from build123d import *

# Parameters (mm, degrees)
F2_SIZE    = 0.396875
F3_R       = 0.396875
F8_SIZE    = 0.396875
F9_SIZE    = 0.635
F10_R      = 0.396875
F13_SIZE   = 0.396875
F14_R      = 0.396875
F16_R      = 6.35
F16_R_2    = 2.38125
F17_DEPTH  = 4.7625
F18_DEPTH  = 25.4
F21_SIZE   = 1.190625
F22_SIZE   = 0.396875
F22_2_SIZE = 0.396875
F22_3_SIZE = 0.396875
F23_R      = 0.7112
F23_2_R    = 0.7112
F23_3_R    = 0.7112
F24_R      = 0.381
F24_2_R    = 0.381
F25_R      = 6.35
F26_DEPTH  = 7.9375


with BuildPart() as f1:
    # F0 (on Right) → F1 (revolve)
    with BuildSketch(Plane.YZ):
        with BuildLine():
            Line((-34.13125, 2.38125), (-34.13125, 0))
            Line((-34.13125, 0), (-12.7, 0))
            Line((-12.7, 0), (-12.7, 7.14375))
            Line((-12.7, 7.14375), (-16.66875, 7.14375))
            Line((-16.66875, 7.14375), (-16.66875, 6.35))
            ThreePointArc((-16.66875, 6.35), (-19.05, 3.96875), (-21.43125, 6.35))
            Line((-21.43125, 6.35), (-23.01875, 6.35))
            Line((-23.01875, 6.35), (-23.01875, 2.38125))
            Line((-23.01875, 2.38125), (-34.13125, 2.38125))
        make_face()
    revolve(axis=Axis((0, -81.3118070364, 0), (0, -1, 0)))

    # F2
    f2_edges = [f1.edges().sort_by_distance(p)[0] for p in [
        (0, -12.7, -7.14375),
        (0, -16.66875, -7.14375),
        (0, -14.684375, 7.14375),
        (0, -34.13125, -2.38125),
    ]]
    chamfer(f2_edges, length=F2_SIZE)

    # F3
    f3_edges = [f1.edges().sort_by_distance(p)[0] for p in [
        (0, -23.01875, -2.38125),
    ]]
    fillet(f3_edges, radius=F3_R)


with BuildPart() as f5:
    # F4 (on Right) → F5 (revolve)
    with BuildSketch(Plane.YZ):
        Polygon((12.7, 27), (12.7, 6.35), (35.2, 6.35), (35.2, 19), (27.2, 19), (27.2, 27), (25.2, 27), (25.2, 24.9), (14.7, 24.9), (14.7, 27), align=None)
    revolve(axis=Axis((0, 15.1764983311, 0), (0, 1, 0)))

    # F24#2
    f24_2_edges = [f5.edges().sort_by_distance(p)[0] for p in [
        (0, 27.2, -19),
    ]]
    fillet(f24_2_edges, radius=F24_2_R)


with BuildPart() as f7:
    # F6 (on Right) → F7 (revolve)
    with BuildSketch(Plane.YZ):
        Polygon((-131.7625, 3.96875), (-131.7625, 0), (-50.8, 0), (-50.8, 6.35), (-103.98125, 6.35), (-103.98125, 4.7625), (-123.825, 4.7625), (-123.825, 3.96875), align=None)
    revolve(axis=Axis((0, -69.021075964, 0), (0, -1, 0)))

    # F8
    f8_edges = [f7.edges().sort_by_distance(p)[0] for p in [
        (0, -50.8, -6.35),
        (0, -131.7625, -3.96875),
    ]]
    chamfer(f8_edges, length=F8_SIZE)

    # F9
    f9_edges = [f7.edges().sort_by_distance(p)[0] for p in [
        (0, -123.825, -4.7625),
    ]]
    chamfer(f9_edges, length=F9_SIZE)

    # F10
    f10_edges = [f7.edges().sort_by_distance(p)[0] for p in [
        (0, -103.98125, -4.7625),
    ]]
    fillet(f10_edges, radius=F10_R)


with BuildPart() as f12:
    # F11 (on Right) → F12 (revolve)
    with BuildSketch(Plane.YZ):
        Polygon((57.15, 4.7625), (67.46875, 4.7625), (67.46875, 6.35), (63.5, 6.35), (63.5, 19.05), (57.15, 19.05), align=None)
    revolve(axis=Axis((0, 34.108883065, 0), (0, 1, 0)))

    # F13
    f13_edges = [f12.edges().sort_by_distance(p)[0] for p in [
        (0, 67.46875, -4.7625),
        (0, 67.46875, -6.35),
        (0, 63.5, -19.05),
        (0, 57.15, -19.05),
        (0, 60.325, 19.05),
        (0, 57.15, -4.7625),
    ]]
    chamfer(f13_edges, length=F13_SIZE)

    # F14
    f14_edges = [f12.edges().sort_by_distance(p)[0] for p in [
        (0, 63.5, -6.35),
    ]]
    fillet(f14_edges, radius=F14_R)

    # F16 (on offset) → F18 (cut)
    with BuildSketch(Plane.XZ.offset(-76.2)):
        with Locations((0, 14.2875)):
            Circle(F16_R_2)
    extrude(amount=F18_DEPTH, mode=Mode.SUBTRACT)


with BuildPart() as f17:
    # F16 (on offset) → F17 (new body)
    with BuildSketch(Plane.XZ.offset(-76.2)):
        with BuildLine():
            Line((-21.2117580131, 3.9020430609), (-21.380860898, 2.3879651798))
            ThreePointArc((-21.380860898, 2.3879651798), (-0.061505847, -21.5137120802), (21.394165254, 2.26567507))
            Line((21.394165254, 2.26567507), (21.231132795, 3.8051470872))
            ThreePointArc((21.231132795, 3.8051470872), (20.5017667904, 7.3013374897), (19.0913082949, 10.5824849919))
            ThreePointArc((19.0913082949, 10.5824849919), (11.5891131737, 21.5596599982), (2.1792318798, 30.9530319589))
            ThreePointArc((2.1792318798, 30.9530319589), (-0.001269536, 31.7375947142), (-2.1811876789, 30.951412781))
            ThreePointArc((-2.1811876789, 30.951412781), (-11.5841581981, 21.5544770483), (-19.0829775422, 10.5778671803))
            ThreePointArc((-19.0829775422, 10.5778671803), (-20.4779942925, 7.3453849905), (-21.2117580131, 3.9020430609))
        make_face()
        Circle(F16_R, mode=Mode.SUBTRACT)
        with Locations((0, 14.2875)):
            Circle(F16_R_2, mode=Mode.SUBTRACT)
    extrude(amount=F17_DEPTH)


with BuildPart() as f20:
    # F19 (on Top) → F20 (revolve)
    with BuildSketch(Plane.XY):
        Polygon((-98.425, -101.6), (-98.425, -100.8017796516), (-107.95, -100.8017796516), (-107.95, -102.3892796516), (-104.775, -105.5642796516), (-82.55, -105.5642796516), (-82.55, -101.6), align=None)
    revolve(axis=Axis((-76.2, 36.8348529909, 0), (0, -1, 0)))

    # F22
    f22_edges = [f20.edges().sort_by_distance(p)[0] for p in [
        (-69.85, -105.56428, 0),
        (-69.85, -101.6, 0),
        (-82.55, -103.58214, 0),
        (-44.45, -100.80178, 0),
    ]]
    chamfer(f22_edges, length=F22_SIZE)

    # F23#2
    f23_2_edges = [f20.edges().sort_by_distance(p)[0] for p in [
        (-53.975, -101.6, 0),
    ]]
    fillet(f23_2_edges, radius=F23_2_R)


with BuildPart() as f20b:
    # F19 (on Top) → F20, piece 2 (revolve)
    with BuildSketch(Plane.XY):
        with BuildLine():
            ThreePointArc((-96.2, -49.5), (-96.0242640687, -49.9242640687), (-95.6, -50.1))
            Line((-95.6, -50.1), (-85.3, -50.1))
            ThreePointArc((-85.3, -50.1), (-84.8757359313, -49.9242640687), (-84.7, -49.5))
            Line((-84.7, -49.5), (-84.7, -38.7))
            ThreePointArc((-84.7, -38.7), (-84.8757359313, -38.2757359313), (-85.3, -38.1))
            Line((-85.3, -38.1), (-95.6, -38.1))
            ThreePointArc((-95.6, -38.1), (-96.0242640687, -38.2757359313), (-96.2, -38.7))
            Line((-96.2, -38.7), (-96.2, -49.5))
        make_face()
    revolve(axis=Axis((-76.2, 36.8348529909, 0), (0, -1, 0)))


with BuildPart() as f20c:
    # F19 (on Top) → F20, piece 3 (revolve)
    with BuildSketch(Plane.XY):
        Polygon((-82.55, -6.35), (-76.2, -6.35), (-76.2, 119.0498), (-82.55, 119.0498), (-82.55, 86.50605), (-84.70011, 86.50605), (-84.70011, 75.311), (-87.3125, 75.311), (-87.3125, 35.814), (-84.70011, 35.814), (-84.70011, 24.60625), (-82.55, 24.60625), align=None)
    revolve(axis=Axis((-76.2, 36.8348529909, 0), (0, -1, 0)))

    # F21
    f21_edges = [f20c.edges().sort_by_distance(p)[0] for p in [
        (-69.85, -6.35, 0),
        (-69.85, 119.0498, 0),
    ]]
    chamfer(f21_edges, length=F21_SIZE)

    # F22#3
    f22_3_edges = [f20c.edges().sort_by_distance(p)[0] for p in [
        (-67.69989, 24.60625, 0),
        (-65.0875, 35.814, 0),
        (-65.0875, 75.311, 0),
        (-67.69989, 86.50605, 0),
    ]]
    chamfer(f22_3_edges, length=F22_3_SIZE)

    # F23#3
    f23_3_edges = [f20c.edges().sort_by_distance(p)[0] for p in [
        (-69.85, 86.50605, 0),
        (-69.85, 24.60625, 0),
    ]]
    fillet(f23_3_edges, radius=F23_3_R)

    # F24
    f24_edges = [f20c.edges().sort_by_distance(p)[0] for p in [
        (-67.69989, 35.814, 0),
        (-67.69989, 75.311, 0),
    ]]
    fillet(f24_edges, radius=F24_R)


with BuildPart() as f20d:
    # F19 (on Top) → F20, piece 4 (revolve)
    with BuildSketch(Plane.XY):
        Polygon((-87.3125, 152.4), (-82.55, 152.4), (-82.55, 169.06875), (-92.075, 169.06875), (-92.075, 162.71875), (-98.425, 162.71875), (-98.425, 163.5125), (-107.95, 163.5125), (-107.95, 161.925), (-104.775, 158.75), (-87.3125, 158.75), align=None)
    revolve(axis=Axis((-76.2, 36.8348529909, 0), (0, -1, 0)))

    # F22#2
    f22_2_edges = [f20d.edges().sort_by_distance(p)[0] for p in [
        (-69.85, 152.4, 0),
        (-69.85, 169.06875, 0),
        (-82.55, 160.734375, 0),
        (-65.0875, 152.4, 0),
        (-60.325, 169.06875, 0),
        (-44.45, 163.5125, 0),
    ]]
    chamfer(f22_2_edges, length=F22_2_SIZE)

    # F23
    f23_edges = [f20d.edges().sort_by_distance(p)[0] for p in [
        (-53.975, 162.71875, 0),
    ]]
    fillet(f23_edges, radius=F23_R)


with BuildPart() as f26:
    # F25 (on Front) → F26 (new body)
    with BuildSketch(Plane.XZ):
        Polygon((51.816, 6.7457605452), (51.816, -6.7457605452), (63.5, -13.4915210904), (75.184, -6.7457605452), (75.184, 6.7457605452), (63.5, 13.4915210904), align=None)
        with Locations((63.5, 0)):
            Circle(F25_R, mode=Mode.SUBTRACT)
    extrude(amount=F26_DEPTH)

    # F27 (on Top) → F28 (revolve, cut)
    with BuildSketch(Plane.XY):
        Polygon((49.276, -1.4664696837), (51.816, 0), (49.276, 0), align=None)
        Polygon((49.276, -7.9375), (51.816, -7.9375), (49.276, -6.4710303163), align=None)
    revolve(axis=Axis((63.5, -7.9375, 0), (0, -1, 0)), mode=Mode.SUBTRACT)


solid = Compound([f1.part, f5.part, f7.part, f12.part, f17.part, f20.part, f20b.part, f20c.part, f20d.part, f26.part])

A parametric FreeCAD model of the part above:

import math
import FreeCAD as App
import Part
import Sketcher
Q = App.Units.Quantity


def edges_at(feature, points):
    """Names of the edges that pass closest to the given points."""
    edges = feature.Shape.Edges
    near = lambda p: min(range(len(edges)), key=lambda i: edges[i].distToShape(Part.Vertex(*p))[0])
    return sorted({f"Edge{near(p) + 1}" for p in points})

doc = App.newDocument("Part")
body = doc.addObject("PartDesign::Body", "Body")

sketch1 = body.newObject("Sketcher::SketchObject", "Sketch")
sketch1.AttachmentSupport = (doc.getObject("YZ_Plane"), [""])
sketch1.MapMode = "FlatFace"
sketch1.addGeometry(Part.LineSegment(App.Vector(-34.13125, 2.38125, 0), App.Vector(-34.13125, 0, 0)), False)
sketch1.addGeometry(Part.LineSegment(App.Vector(-34.13125, 0, 0), App.Vector(-12.7, 0, 0)), False)
sketch1.addGeometry(Part.LineSegment(App.Vector(-12.7, 0, 0), App.Vector(-12.7, 7.14375, 0)), False)
sketch1.addGeometry(Part.LineSegment(App.Vector(-12.7, 7.14375, 0), App.Vector(-16.66875, 7.14375, 0)), False)
sketch1.addGeometry(Part.LineSegment(App.Vector(-16.66875, 7.14375, 0), App.Vector(-16.66875, 6.35, 0)), False)
sketch1.addGeometry(Part.ArcOfCircle(Part.Circle(App.Vector(-19.05, 6.35, 0), App.Vector(0, 0, 1), 2.38125), math.radians(180), math.radians(360)), False)
sketch1.addGeometry(Part.LineSegment(App.Vector(-21.43125, 6.35, 0), App.Vector(-23.01875, 6.35, 0)), False)
sketch1.addGeometry(Part.LineSegment(App.Vector(-23.01875, 6.35, 0), App.Vector(-23.01875, 2.38125, 0)), False)
sketch1.addGeometry(Part.LineSegment(App.Vector(-23.01875, 2.38125, 0), App.Vector(-34.13125, 2.38125, 0)), False)
sketch1.addConstraint(Sketcher.Constraint("Coincident", 0, 2, 1, 1))
sketch1.addConstraint(Sketcher.Constraint("Coincident", 1, 2, 2, 1))
sketch1.addConstraint(Sketcher.Constraint("Coincident", 2, 2, 3, 1))
sketch1.addConstraint(Sketcher.Constraint("Coincident", 3, 2, 4, 1))
sketch1.addConstraint(Sketcher.Constraint("Tangent", 4, 2, 5, 2))
sketch1.addConstraint(Sketcher.Constraint("Coincident", 5, 1, 6, 1))
sketch1.addConstraint(Sketcher.Constraint("Coincident", 6, 2, 7, 1))
sketch1.addConstraint(Sketcher.Constraint("Coincident", 7, 2, 8, 1))
sketch1.addConstraint(Sketcher.Constraint("Coincident", 8, 2, 0, 1))
sketch1.addConstraint(Sketcher.Constraint("Vertical", 0))
sketch1.addConstraint(Sketcher.Constraint("Horizontal", 1))
sketch1.addConstraint(Sketcher.Constraint("Vertical", 2))
sketch1.addConstraint(Sketcher.Constraint("Horizontal", 3))
sketch1.addConstraint(Sketcher.Constraint("Vertical", 4))
sketch1.addConstraint(Sketcher.Constraint("Horizontal", 6))
sketch1.addConstraint(Sketcher.Constraint("Vertical", 7))
sketch1.addConstraint(Sketcher.Constraint("Horizontal", 8))
sketch1.addConstraint(Sketcher.Constraint("PointOnObject", 0, 2, -1))
sketch1.addConstraint(Sketcher.Constraint("Horizontal", 4, 2, 5, 1))
sketch1.addConstraint(Sketcher.Constraint("Equal", 3, 7))
sketch1.addConstraint(Sketcher.Constraint("Radius", 5, Q("0.09375 in")))
sketch1.addConstraint(Sketcher.Constraint("DistanceX", 1, 2, -1, 1, Q("0.5 in")))
sketch1.addConstraint(Sketcher.Constraint("DistanceX", 8, 2, 5, 1, Q("0.5 in")))
sketch1.addConstraint(Sketcher.Constraint("DistanceX", 1, 1, 1, 2, Q("0.84375 in")))
sketch1.addConstraint(Sketcher.Constraint("DistanceX", 6, 2, 6, 1, Q("0.0625 in")))
sketch1.addConstraint(Sketcher.Constraint("DistanceY", 0, 2, 0, 1, Q("0.09375 in")))
sketch1.addConstraint(Sketcher.Constraint("DistanceY", 2, 1, 2, 2, Q("0.28125 in")))
revolution = body.newObject("PartDesign::Revolution", "Revolution")
revolution.Profile = sketch1
revolution.ReferenceAxis = (sketch1, ["H_Axis"])
revolution.Angle = 360
doc.recompute()

chamfer = body.newObject("PartDesign::Chamfer", "Chamfer")
chamfer.Base = (revolution, edges_at(revolution, [
    (0, -12.7, -7.144),
    (0, -16.669, -7.144),
    (0, -14.684, 7.144),
    (0, -34.131, -2.381),
]))
chamfer.Size = Q("0.015625 in")
doc.recompute()

fillet = body.newObject("PartDesign::Fillet", "Fillet")
fillet.Base = (chamfer, edges_at(chamfer, [(0, -23.019, -2.381)]))
fillet.Radius = Q("0.015625 in")
body2 = doc.addObject("PartDesign::Body", "Body001")

sketch2 = body2.newObject("Sketcher::SketchObject", "Sketch001")
sketch2.AttachmentSupport = (doc.getObject("YZ_Plane001"), [""])
sketch2.MapMode = "FlatFace"
sketch2.addGeometry(Part.LineSegment(App.Vector(12.7, 27, 0), App.Vector(12.7, 6.35, 0)), False)
sketch2.addGeometry(Part.LineSegment(App.Vector(12.7, 6.35, 0), App.Vector(35.2, 6.35, 0)), False)
sketch2.addGeometry(Part.LineSegment(App.Vector(35.2, 6.35, 0), App.Vector(35.2, 19, 0)), False)
sketch2.addGeometry(Part.LineSegment(App.Vector(35.2, 19, 0), App.Vector(27.2, 19, 0)), False)
sketch2.addGeometry(Part.LineSegment(App.Vector(27.2, 19, 0), App.Vector(27.2, 27, 0)), False)
sketch2.addGeometry(Part.LineSegment(App.Vector(27.2, 27, 0), App.Vector(25.2, 27, 0)), False)
sketch2.addGeometry(Part.LineSegment(App.Vector(25.2, 27, 0), App.Vector(25.2, 24.9, 0)), False)
sketch2.addGeometry(Part.LineSegment(App.Vector(25.2, 24.9, 0), App.Vector(14.7, 24.9, 0)), False)
sketch2.addGeometry(Part.LineSegment(App.Vector(14.7, 24.9, 0), App.Vector(14.7, 27, 0)), False)
sketch2.addGeometry(Part.LineSegment(App.Vector(14.7, 27, 0), App.Vector(12.7, 27, 0)), False)
sketch2.addConstraint(Sketcher.Constraint("Coincident", 0, 2, 1, 1))
sketch2.addConstraint(Sketcher.Constraint("Coincident", 1, 2, 2, 1))
sketch2.addConstraint(Sketcher.Constraint("Coincident", 2, 2, 3, 1))
sketch2.addConstraint(Sketcher.Constraint("Coincident", 3, 2, 4, 1))
sketch2.addConstraint(Sketcher.Constraint("Coincident", 4, 2, 5, 1))
sketch2.addConstraint(Sketcher.Constraint("Coincident", 5, 2, 6, 1))
sketch2.addConstraint(Sketcher.Constraint("Coincident", 6, 2, 7, 1))
sketch2.addConstraint(Sketcher.Constraint("Coincident", 7, 2, 8, 1))
sketch2.addConstraint(Sketcher.Constraint("Coincident", 8, 2, 9, 1))
sketch2.addConstraint(Sketcher.Constraint("Coincident", 9, 2, 0, 1))
sketch2.addConstraint(Sketcher.Constraint("Vertical", 0))
sketch2.addConstraint(Sketcher.Constraint("Horizontal", 1))
sketch2.addConstraint(Sketcher.Constraint("Vertical", 2))
sketch2.addConstraint(Sketcher.Constraint("Horizontal", 3))
sketch2.addConstraint(Sketcher.Constraint("Vertical", 4))
sketch2.addConstraint(Sketcher.Constraint("Horizontal", 5))
sketch2.addConstraint(Sketcher.Constraint("Vertical", 6))
sketch2.addConstraint(Sketcher.Constraint("Horizontal", 7))
sketch2.addConstraint(Sketcher.Constraint("Vertical", 8))
sketch2.addConstraint(Sketcher.Constraint("Horizontal", 9))
sketch2.addConstraint(Sketcher.Constraint("Horizontal", 5, 2, 8, 2))
sketch2.addConstraint(Sketcher.Constraint("Equal", 5, 9))
sketch2.addConstraint(Sketcher.Constraint("Equal", 3, 4))
sketch2.addConstraint(Sketcher.Constraint("DistanceX", -1, 1, 0, 2, Q("0.5 in")))
sketch2.addConstraint(Sketcher.Constraint("DistanceY", -1, 1, 0, 2, Q("0.25 in")))
sketch2.addConstraint(Sketcher.Constraint("DistanceX", 1, 1, 1, 2, Q("22.5 mm")))
sketch2.addConstraint(Sketcher.Constraint("DistanceX", 3, 2, 3, 1, Q("8 mm")))
sketch2.addConstraint(Sketcher.Constraint("DistanceX", 5, 2, 5, 1, Q("2 mm")))
sketch2.addConstraint(Sketcher.Constraint("DistanceY", 0, 2, 0, 1, Q("20.65 mm")))
sketch2.addConstraint(Sketcher.Constraint("DistanceY", 6, 2, 6, 1, Q("2.1 mm")))
revolution2 = body2.newObject("PartDesign::Revolution", "Revolution001")
revolution2.Profile = sketch2
revolution2.ReferenceAxis = (sketch2, ["H_Axis"])
revolution2.Angle = 360
doc.recompute()

fillet2 = body2.newObject("PartDesign::Fillet", "Fillet001")
fillet2.Base = (revolution2, edges_at(revolution2, [(0, 27.2, -19)]))
fillet2.Radius = Q("0.015 in")
body3 = doc.addObject("PartDesign::Body", "Body002")

sketch3 = body3.newObject("Sketcher::SketchObject", "Sketch002")
sketch3.AttachmentSupport = (doc.getObject("YZ_Plane002"), [""])
sketch3.MapMode = "FlatFace"
sketch3.addGeometry(Part.LineSegment(App.Vector(-131.7625, 3.96875, 0), App.Vector(-131.7625, 0, 0)), False)
sketch3.addGeometry(Part.LineSegment(App.Vector(-131.7625, 0, 0), App.Vector(-50.8, 0, 0)), False)
sketch3.addGeometry(Part.LineSegment(App.Vector(-50.8, 0, 0), App.Vector(-50.8, 6.35, 0)), False)
sketch3.addGeometry(Part.LineSegment(App.Vector(-50.8, 6.35, 0), App.Vector(-103.98125, 6.35, 0)), False)
sketch3.addGeometry(Part.LineSegment(App.Vector(-103.98125, 6.35, 0), App.Vector(-103.98125, 4.7625, 0)), False)
sketch3.addGeometry(Part.LineSegment(App.Vector(-103.98125, 4.7625, 0), App.Vector(-123.825, 4.7625, 0)), False)
sketch3.addGeometry(Part.LineSegment(App.Vector(-123.825, 4.7625, 0), App.Vector(-123.825, 3.96875, 0)), False)
sketch3.addGeometry(Part.LineSegment(App.Vector(-123.825, 3.96875, 0), App.Vector(-131.7625, 3.96875, 0)), False)
sketch3.addConstraint(Sketcher.Constraint("Coincident", 0, 2, 1, 1))
sketch3.addConstraint(Sketcher.Constraint("Coincident", 1, 2, 2, 1))
sketch3.addConstraint(Sketcher.Constraint("Coincident", 2, 2, 3, 1))
sketch3.addConstraint(Sketcher.Constraint("Coincident", 3, 2, 4, 1))
sketch3.addConstraint(Sketcher.Constraint("Coincident", 4, 2, 5, 1))
sketch3.addConstraint(Sketcher.Constraint("Coincident", 5, 2, 6, 1))
sketch3.addConstraint(Sketcher.Constraint("Coincident", 6, 2, 7, 1))
sketch3.addConstraint(Sketcher.Constraint("Coincident", 7, 2, 0, 1))
sketch3.addConstraint(Sketcher.Constraint("Vertical", 0))
sketch3.addConstraint(Sketcher.Constraint("Horizontal", 1))
sketch3.addConstraint(Sketcher.Constraint("Vertical", 2))
sketch3.addConstraint(Sketcher.Constraint("Horizontal", 3))
sketch3.addConstraint(Sketcher.Constraint("Vertical", 4))
sketch3.addConstraint(Sketcher.Constraint("Horizontal", 5))
sketch3.addConstraint(Sketcher.Constraint("Vertical", 6))
sketch3.addConstraint(Sketcher.Constraint("Horizontal", 7))
sketch3.addConstraint(Sketcher.Constraint("PointOnObject", 0, 2, -1))
sketch3.addConstraint(Sketcher.Constraint("DistanceX", 1, 2, -1, 1, Q("2 in")))
sketch3.addConstraint(Sketcher.Constraint("DistanceY", 2, 1, 2, 2, Q("0.25 in")))
sketch3.addConstraint(Sketcher.Constraint("DistanceX", 1, 1, 1, 2, Q("3.1875 in")))
sketch3.addConstraint(Sketcher.Constraint("DistanceX", 3, 2, 3, 1, Q("2.09375 in")))
sketch3.addConstraint(Sketcher.Constraint("DistanceX", 5, 2, 5, 1, Q("0.78125 in")))
sketch3.addConstraint(Sketcher.Constraint("DistanceY", 0, 2, 0, 1, Q("0.15625 in")))
sketch3.addConstraint(Sketcher.Constraint("DistanceY", 4, 2, 4, 1, Q("0.0625 in")))
revolution3 = body3.newObject("PartDesign::Revolution", "Revolution002")
revolution3.Profile = sketch3
revolution3.ReferenceAxis = (sketch3, ["H_Axis"])
revolution3.Angle = 360
doc.recompute()

chamfer2 = body3.newObject("PartDesign::Chamfer", "Chamfer001")
chamfer2.Base = (revolution3, edges_at(revolution3, [(0, -50.8, -6.35), (0, -131.762, -3.969)]))
chamfer2.Size = Q("0.015625 in")
doc.recompute()

chamfer3 = body3.newObject("PartDesign::Chamfer", "Chamfer002")
chamfer3.Base = (chamfer2, edges_at(chamfer2, [(0, -123.825, -4.763)]))
chamfer3.Size = Q("0.025 in")
doc.recompute()

fillet3 = body3.newObject("PartDesign::Fillet", "Fillet002")
fillet3.Base = (chamfer3, edges_at(chamfer3, [(0, -103.981, -4.763)]))
fillet3.Radius = Q("0.015625 in")
body4 = doc.addObject("PartDesign::Body", "Body003")

sketch4 = body4.newObject("Sketcher::SketchObject", "Sketch003")
sketch4.AttachmentSupport = (doc.getObject("YZ_Plane003"), [""])
sketch4.MapMode = "FlatFace"
sketch4.addGeometry(Part.LineSegment(App.Vector(57.15, 4.7625, 0), App.Vector(67.46875, 4.7625, 0)), False)
sketch4.addGeometry(Part.LineSegment(App.Vector(67.46875, 4.7625, 0), App.Vector(67.46875, 6.35, 0)), False)
sketch4.addGeometry(Part.LineSegment(App.Vector(67.46875, 6.35, 0), App.Vector(63.5, 6.35, 0)), False)
sketch4.addGeometry(Part.LineSegment(App.Vector(63.5, 6.35, 0), App.Vector(63.5, 19.05, 0)), False)
sketch4.addGeometry(Part.LineSegment(App.Vector(63.5, 19.05, 0), App.Vector(57.15, 19.05, 0)), False)
sketch4.addGeometry(Part.LineSegment(App.Vector(57.15, 19.05, 0), App.Vector(57.15, 4.7625, 0)), False)
sketch4.addConstraint(Sketcher.Constraint("Coincident", 0, 2, 1, 1))
sketch4.addConstraint(Sketcher.Constraint("Coincident", 1, 2, 2, 1))
sketch4.addConstraint(Sketcher.Constraint("Coincident", 2, 2, 3, 1))
sketch4.addConstraint(Sketcher.Constraint("Coincident", 3, 2, 4, 1))
sketch4.addConstraint(Sketcher.Constraint("Coincident", 4, 2, 5, 1))
sketch4.addConstraint(Sketcher.Constraint("Coincident", 5, 2, 0, 1))
sketch4.addConstraint(Sketcher.Constraint("Horizontal", 0))
sketch4.addConstraint(Sketcher.Constraint("Vertical", 1))
sketch4.addConstraint(Sketcher.Constraint("Horizontal", 2))
sketch4.addConstraint(Sketcher.Constraint("Vertical", 3))
sketch4.addConstraint(Sketcher.Constraint("Horizontal", 4))
sketch4.addConstraint(Sketcher.Constraint("Vertical", 5))
sketch4.addConstraint(Sketcher.Constraint("DistanceY", 3, 1, 3, 2, Q("0.5 in")))
sketch4.addConstraint(Sketcher.Constraint("DistanceX", 4, 2, 4, 1, Q("0.25 in")))
sketch4.addConstraint(Sketcher.Constraint("DistanceX", -1, 1, 2, 2, Q("2.5 in")))
sketch4.addConstraint(Sketcher.Constraint("DistanceX", 0, 1, 0, 2, Q("0.40625 in")))
sketch4.addConstraint(Sketcher.Constraint("DistanceY", 1, 1, 1, 2, Q("0.0625 in")))
sketch4.addConstraint(Sketcher.Constraint("DistanceY", -1, 1, 1, 2, Q("0.25 in")))
revolution4 = body4.newObject("PartDesign::Revolution", "Revolution003")
revolution4.Profile = sketch4
revolution4.ReferenceAxis = (sketch4, ["H_Axis"])
revolution4.Angle = 360
doc.recompute()

chamfer4 = body4.newObject("PartDesign::Chamfer", "Chamfer003")
chamfer4.Base = (revolution4, edges_at(revolution4, [
    (0, 67.469, -4.763),
    (0, 67.469, -6.35),
    (0, 63.5, -19.05),
    (0, 57.15, -19.05),
    (0, 60.325, 19.05),
    (0, 57.15, -4.763),
]))
chamfer4.Size = Q("0.015625 in")
doc.recompute()

fillet4 = body4.newObject("PartDesign::Fillet", "Fillet003")
fillet4.Base = (chamfer4, edges_at(chamfer4, [(0, 63.5, -6.35)]))
fillet4.Radius = Q("0.015625 in")

sketch5 = body4.newObject("Sketcher::SketchObject", "Sketch004")
sketch5.AttachmentSupport = (doc.getObject("XZ_Plane003"), [""])
sketch5.MapMode = "FlatFace"
sketch5.AttachmentOffset = App.Placement(App.Vector(0, 0, -3 * 25.4), App.Rotation())
sketch5.addGeometry(Part.Circle(App.Vector(0, 14.2875, 0), App.Vector(0, 0, 1), 2.38125), False)
sketch5.addConstraint(Sketcher.Constraint("PointOnObject", 0, 3, -2))
sketch5.addConstraint(Sketcher.Constraint("Diameter", 0, Q("0.1875 in")))
sketch5.addConstraint(Sketcher.Constraint("DistanceY", -1, 1, 0, 3, Q("0.5625 in")))
pocket1 = body4.newObject("PartDesign::Pocket", "Pocket")
pocket1.Profile = sketch5
pocket1.Length = Q("1 in")
pocket1.Reversed = True
body5 = doc.addObject("PartDesign::Body", "Body004")

sketch6 = body5.newObject("Sketcher::SketchObject", "Sketch005")
sketch6.AttachmentSupport = (doc.getObject("XZ_Plane004"), [""])
sketch6.MapMode = "FlatFace"
sketch6.AttachmentOffset = App.Placement(App.Vector(0, 0, -3 * 25.4), App.Rotation())
sketch6.addGeometry(Part.LineSegment(App.Vector(-21.211758, 3.902043, 0), App.Vector(-21.380861, 2.387965, 0)), False)
sketch6.addGeometry(Part.ArcOfCircle(Part.Circle(App.Vector(0, 0, 0), App.Vector(0, 0, 1), 21.5138), math.radians(173.627214), math.radians(366.045179)), False)
sketch6.addGeometry(Part.LineSegment(App.Vector(21.394165, 2.265675, 0), App.Vector(21.231133, 3.805147, 0)), False)
sketch6.addGeometry(Part.ArcOfCircle(Part.Circle(App.Vector(3.471702, 1.924396, 0), App.Vector(0, 0, 1), 17.85874), math.radians(6.045179), math.radians(29)), False)
sketch6.addGeometry(Part.ArcOfCircle(Part.Circle(App.Vector(-43.267715, -23.983686, 0), App.Vector(0, 0, 1), 71.298443), math.radians(29), math.radians(50.400408)), False)
sketch6.addGeometry(Part.ArcOfCircle(Part.Circle(App.Vector(0, 28.318755, 0), App.Vector(0, 0, 1), 3.41884), math.radians(50.400408), math.radians(129.642144)), False)
sketch6.addGeometry(Part.ArcOfCircle(Part.Circle(App.Vector(43.388782, -24.050794, 0), App.Vector(0, 0, 1), 71.42734), math.radians(129.642144), math.radians(151)), False)
sketch6.addGeometry(Part.ArcOfCircle(Part.Circle(App.Vector(-3.463372, 1.919778, 0), App.Vector(0, 0, 1), 17.85874), math.radians(151), math.radians(173.627214)), False)
sketch6.addGeometry(Part.Circle(App.Vector(0, 0, 0), App.Vector(0, 0, 1), 6.35), False)
sketch6.addGeometry(Part.Circle(App.Vector(0, 14.2875, 0), App.Vector(0, 0, 1), 2.38125), False)
sketch6.addConstraint(Sketcher.Constraint("Tangent", 0, 2, 1, 1))
sketch6.addConstraint(Sketcher.Constraint("Tangent", 1, 2, 2, 1))
sketch6.addConstraint(Sketcher.Constraint("Tangent", 2, 2, 3, 1))
sketch6.addConstraint(Sketcher.Constraint("Tangent", 3, 2, 4, 1))
sketch6.addConstraint(Sketcher.Constraint("Tangent", 4, 2, 5, 1))
sketch6.addConstraint(Sketcher.Constraint("Tangent", 5, 2, 6, 1))
sketch6.addConstraint(Sketcher.Constraint("Tangent", 6, 2, 7, 1))
sketch6.addConstraint(Sketcher.Constraint("Tangent", 7, 2, 0, 1))
sketch6.addConstraint(Sketcher.Constraint("Coincident", 1, 3, -1, 1))
sketch6.addConstraint(Sketcher.Constraint("Coincident", 8, 3, -1, 1))
sketch6.addConstraint(Sketcher.Constraint("Equal", 3, 7))
sketch6.addConstraint(Sketcher.Constraint("PointOnObject", 5, 3, -2))
sketch6.addConstraint(Sketcher.Constraint("PointOnObject", 9, 3, -2))
sketch6.addConstraint(Sketcher.Constraint("Diameter", 8, Q("0.5 in")))
sketch6.addConstraint(Sketcher.Constraint("Diameter", 9, Q("0.1875 in")))
sketch6.addConstraint(Sketcher.Constraint("Radius", 1, Q("0.847 in")))
sketch6.addConstraint(Sketcher.Constraint("Radius", 3, Q("0.7031 in")))
sketch6.addConstraint(Sketcher.Constraint("Radius", 5, Q("0.1346 in")))
sketch6.addConstraint(Sketcher.Constraint("Radius", 6, Q("2.8121 in")))
sketch6.addConstraint(Sketcher.Constraint("DistanceY", -1, 1, 9, 3, Q("0.5625 in")))
sketch6.addConstraint(Sketcher.Constraint("DistanceY", -1, 1, 1, 2, Q("0.0891998 in")))
sketch6.addConstraint(Sketcher.Constraint("Radius", 4, Q("71.298443 mm")))
sketch6.addConstraint(Sketcher.Constraint("DistanceX", 4, 3, 7, 3, Q("1.5671001 in")))
sketch6.addConstraint(Sketcher.Constraint("DistanceX", 5, 2, 3, 2, Q("0.8374998 in")))
sketch6.addConstraint(Sketcher.Constraint("DistanceY", 0, 2, 6, 2, Q("8.189902 mm")))
sketch6.addConstraint(Sketcher.Constraint("Distance", 0, Q("1.523492 mm")))
pad1 = body5.newObject("PartDesign::Pad", "Pad")
pad1.Profile = sketch6
pad1.Length = Q("0.1875 in")
body6 = doc.addObject("PartDesign::Body", "Body005")

sketch7 = body6.newObject("Sketcher::SketchObject", "Sketch006")
sketch7.AttachmentSupport = (doc.getObject("XY_Plane005"), [""])
sketch7.MapMode = "FlatFace"
sketch7.addGeometry(Part.LineSegment(App.Vector(-98.425, -101.6, 0), App.Vector(-98.425, -100.80178, 0)), False)
sketch7.addGeometry(Part.LineSegment(App.Vector(-98.425, -100.80178, 0), App.Vector(-107.95, -100.80178, 0)), False)
sketch7.addGeometry(Part.LineSegment(App.Vector(-107.95, -100.80178, 0), App.Vector(-107.95, -102.38928, 0)), False)
sketch7.addGeometry(Part.LineSegment(App.Vector(-107.95, -102.38928, 0), App.Vector(-104.775, -105.56428, 0)), False)
sketch7.addGeometry(Part.LineSegment(App.Vector(-104.775, -105.56428, 0), App.Vector(-82.55, -105.56428, 0)), False)
sketch7.addGeometry(Part.LineSegment(App.Vector(-82.55, -105.56428, 0), App.Vector(-82.55, -101.6, 0)), False)
sketch7.addGeometry(Part.LineSegment(App.Vector(-82.55, -101.6, 0), App.Vector(-98.425, -101.6, 0)), False)
sketch7.addGeometry(Part.LineSegment(App.Vector(-76.2, -100.80178, 0), App.Vector(-76.2, -105.56428, 0)), True)
sketch7.addConstraint(Sketcher.Constraint("Coincident", 0, 2, 1, 1))
sketch7.addConstraint(Sketcher.Constraint("Coincident", 1, 2, 2, 1))
sketch7.addConstraint(Sketcher.Constraint("Coincident", 2, 2, 3, 1))
sketch7.addConstraint(Sketcher.Constraint("Coincident", 3, 2, 4, 1))
sketch7.addConstraint(Sketcher.Constraint("Coincident", 4, 2, 5, 1))
sketch7.addConstraint(Sketcher.Constraint("Coincident", 5, 2, 6, 1))
sketch7.addConstraint(Sketcher.Constraint("Coincident", 6, 2, 0, 1))
sketch7.addConstraint(Sketcher.Constraint("Vertical", 0))
sketch7.addConstraint(Sketcher.Constraint("Horizontal", 1))
sketch7.addConstraint(Sketcher.Constraint("Vertical", 2))
sketch7.addConstraint(Sketcher.Constraint("Horizontal", 4))
sketch7.addConstraint(Sketcher.Constraint("Vertical", 5))
sketch7.addConstraint(Sketcher.Constraint("Horizontal", 6))
sketch7.addConstraint(Sketcher.Constraint("Vertical", 7))
sketch7.addConstraint(Sketcher.Constraint("Horizontal", 1, 2, 7, 1))
sketch7.addConstraint(Sketcher.Constraint("Horizontal", 4, 2, 7, 2))
sketch7.addConstraint(Sketcher.Constraint("DistanceY", 5, 2, -1, 1, Q("4 in")))
sketch7.addConstraint(Sketcher.Constraint("DistanceX", 7, 1, -1, 1, Q("3 in")))
sketch7.addConstraint(Sketcher.Constraint("Angle", 3, Q("-45 deg")))
sketch7.addConstraint(Sketcher.Constraint("DistanceX", 2, 2, 4, 2, Q("1 in")))
sketch7.addConstraint(Sketcher.Constraint("DistanceX", 1, 2, 1, 1, Q("0.375 in")))
sketch7.addConstraint(Sketcher.Constraint("DistanceX", 4, 1, 4, 2, Q("0.875 in")))
sketch7.addConstraint(Sketcher.Constraint("DistanceY", 2, 2, 2, 1, Q("0.0625 in")))
sketch7.addConstraint(Sketcher.Constraint("DistanceX", 1, 2, -1, 1, Q("4.25 in")))
sketch7.addConstraint(Sketcher.Constraint("DistanceY", 0, 1, 0, 2, Q("0.79822 mm")))
revolution5 = body6.newObject("PartDesign::Revolution", "Revolution004")
revolution5.Profile = sketch7
revolution5.ReferenceAxis = (sketch7, ["Axis0"])
revolution5.Angle = 360
doc.recompute()

chamfer5 = body6.newObject("PartDesign::Chamfer", "Chamfer004")
chamfer5.Base = (revolution5, edges_at(revolution5, [
    (-69.85, -105.564, 0),
    (-69.85, -101.6, 0),
    (-82.55, -103.582, 0),
    (-44.45, -100.802, 0),
]))
chamfer5.Size = Q("0.015625 in")
doc.recompute()

fillet5 = body6.newObject("PartDesign::Fillet", "Fillet004")
fillet5.Base = (chamfer5, edges_at(chamfer5, [(-53.975, -101.6, 0)]))
fillet5.Radius = Q("0.028 in")
body7 = doc.addObject("PartDesign::Body", "Body006")

sketch8 = body7.newObject("Sketcher::SketchObject", "Sketch007")
sketch8.AttachmentSupport = (doc.getObject("XY_Plane006"), [""])
sketch8.MapMode = "FlatFace"
sketch8.addGeometry(Part.ArcOfCircle(Part.Circle(App.Vector(-95.6, -49.5, 0), App.Vector(0, 0, 1), 0.6), math.radians(180), math.radians(270)), False)
sketch8.addGeometry(Part.LineSegment(App.Vector(-95.6, -50.1, 0), App.Vector(-85.3, -50.1, 0)), False)
sketch8.addGeometry(Part.ArcOfCircle(Part.Circle(App.Vector(-85.3, -49.5, 0), App.Vector(0, 0, 1), 0.6), math.radians(-90), math.radians(0)), False)
sketch8.addGeometry(Part.LineSegment(App.Vector(-84.7, -49.5, 0), App.Vector(-84.7, -38.7, 0)), False)
sketch8.addGeometry(Part.ArcOfCircle(Part.Circle(App.Vector(-85.3, -38.7, 0), App.Vector(0, 0, 1), 0.6), math.radians(0), math.radians(90)), False)
sketch8.addGeometry(Part.LineSegment(App.Vector(-85.3, -38.1, 0), App.Vector(-95.6, -38.1, 0)), False)
sketch8.addGeometry(Part.ArcOfCircle(Part.Circle(App.Vector(-95.6, -38.7, 0), App.Vector(0, 0, 1), 0.6), math.radians(90), math.radians(180)), False)
sketch8.addGeometry(Part.LineSegment(App.Vector(-96.2, -38.7, 0), App.Vector(-96.2, -49.5, 0)), False)
sketch8.addGeometry(Part.LineSegment(App.Vector(-76.2, -38.1, 0), App.Vector(-76.2, -50.1, 0)), True)
sketch8.addConstraint(Sketcher.Constraint("Tangent", 0, 2, 1, 1))
sketch8.addConstraint(Sketcher.Constraint("Tangent", 1, 2, 2, 1))
sketch8.addConstraint(Sketcher.Constraint("Tangent", 2, 2, 3, 1))
sketch8.addConstraint(Sketcher.Constraint("Tangent", 3, 2, 4, 1))
sketch8.addConstraint(Sketcher.Constraint("Tangent", 4, 2, 5, 1))
sketch8.addConstraint(Sketcher.Constraint("Tangent", 5, 2, 6, 1))
sketch8.addConstraint(Sketcher.Constraint("Tangent", 6, 2, 7, 1))
sketch8.addConstraint(Sketcher.Constraint("Tangent", 7, 2, 0, 1))
sketch8.addConstraint(Sketcher.Constraint("Horizontal", 1))
sketch8.addConstraint(Sketcher.Constraint("Vertical", 3))
sketch8.addConstraint(Sketcher.Constraint("Horizontal", 5))
sketch8.addConstraint(Sketcher.Constraint("Vertical", 7))
sketch8.addConstraint(Sketcher.Constraint("Vertical", 8))
sketch8.addConstraint(Sketcher.Constraint("Equal", 0, 2))
sketch8.addConstraint(Sketcher.Constraint("Equal", 2, 4))
sketch8.addConstraint(Sketcher.Constraint("Equal", 4, 6))
sketch8.addConstraint(Sketcher.Constraint("Horizontal", 5, 2, 8, 1))
sketch8.addConstraint(Sketcher.Constraint("Horizontal", 1, 2, 8, 2))
sketch8.addConstraint(Sketcher.Constraint("DistanceX", 8, 1, -1, 1, Q("3 in")))
sketch8.addConstraint(Sketcher.Constraint("DistanceY", 4, 2, -1, 1, Q("1.5 in")))
sketch8.addConstraint(Sketcher.Constraint("Radius", 0, Q("0.6 mm")))
sketch8.addConstraint(Sketcher.Constraint("DistanceX", 1, 1, 1, 2, Q("10.3 mm")))
sketch8.addConstraint(Sketcher.Constraint("DistanceY", 3, 1, 3, 2, Q("10.8 mm")))
sketch8.addConstraint(Sketcher.Constraint("DistanceX", 0, 3, -1, 1, Q("95.6 mm")))
revolution6 = body7.newObject("PartDesign::Revolution", "Revolution005")
revolution6.Profile = sketch8
revolution6.ReferenceAxis = (sketch8, ["Axis0"])
revolution6.Angle = 360
body8 = doc.addObject("PartDesign::Body", "Body007")

sketch9 = body8.newObject("Sketcher::SketchObject", "Sketch008")
sketch9.AttachmentSupport = (doc.getObject("XY_Plane007"), [""])
sketch9.MapMode = "FlatFace"
sketch9.addGeometry(Part.LineSegment(App.Vector(-82.55, -6.35, 0), App.Vector(-76.2, -6.35, 0)), False)
sketch9.addGeometry(Part.LineSegment(App.Vector(-76.2, -6.35, 0), App.Vector(-76.2, 119.0498, 0)), False)
sketch9.addGeometry(Part.LineSegment(App.Vector(-76.2, 119.0498, 0), App.Vector(-82.55, 119.0498, 0)), False)
sketch9.addGeometry(Part.LineSegment(App.Vector(-82.55, 119.0498, 0), App.Vector(-82.55, 86.50605, 0)), False)
sketch9.addGeometry(Part.LineSegment(App.Vector(-82.55, 86.50605, 0), App.Vector(-84.70011, 86.50605, 0)), False)
sketch9.addGeometry(Part.LineSegment(App.Vector(-84.70011, 86.50605, 0), App.Vector(-84.70011, 75.311, 0)), False)
sketch9.addGeometry(Part.LineSegment(App.Vector(-84.70011, 75.311, 0), App.Vector(-87.3125, 75.311, 0)), False)
sketch9.addGeometry(Part.LineSegment(App.Vector(-87.3125, 75.311, 0), App.Vector(-87.3125, 35.814, 0)), False)
sketch9.addGeometry(Part.LineSegment(App.Vector(-87.3125, 35.814, 0), App.Vector(-84.70011, 35.814, 0)), False)
sketch9.addGeometry(Part.LineSegment(App.Vector(-84.70011, 35.814, 0), App.Vector(-84.70011, 24.60625, 0)), False)
sketch9.addGeometry(Part.LineSegment(App.Vector(-84.70011, 24.60625, 0), App.Vector(-82.55, 24.60625, 0)), False)
sketch9.addGeometry(Part.LineSegment(App.Vector(-82.55, 24.60625, 0), App.Vector(-82.55, -6.35, 0)), False)
sketch9.addGeometry(Part.LineSegment(App.Vector(-76.2, 119.0498, 0), App.Vector(-76.2, -6.35, 0)), True)
sketch9.addConstraint(Sketcher.Constraint("Coincident", 0, 2, 1, 1))
sketch9.addConstraint(Sketcher.Constraint("Coincident", 1, 2, 2, 1))
sketch9.addConstraint(Sketcher.Constraint("Coincident", 2, 2, 3, 1))
sketch9.addConstraint(Sketcher.Constraint("Coincident", 3, 2, 4, 1))
sketch9.addConstraint(Sketcher.Constraint("Coincident", 4, 2, 5, 1))
sketch9.addConstraint(Sketcher.Constraint("Coincident", 5, 2, 6, 1))
sketch9.addConstraint(Sketcher.Constraint("Coincident", 6, 2, 7, 1))
sketch9.addConstraint(Sketcher.Constraint("Coincident", 7, 2, 8, 1))
sketch9.addConstraint(Sketcher.Constraint("Coincident", 8, 2, 9, 1))
sketch9.addConstraint(Sketcher.Constraint("Coincident", 9, 2, 10, 1))
sketch9.addConstraint(Sketcher.Constraint("Coincident", 10, 2, 11, 1))
sketch9.addConstraint(Sketcher.Constraint("Coincident", 11, 2, 0, 1))
sketch9.addConstraint(Sketcher.Constraint("Horizontal", 0))
sketch9.addConstraint(Sketcher.Constraint("Vertical", 1))
sketch9.addConstraint(Sketcher.Constraint("Horizontal", 2))
sketch9.addConstraint(Sketcher.Constraint("Vertical", 3))
sketch9.addConstraint(Sketcher.Constraint("Horizontal", 4))
sketch9.addConstraint(Sketcher.Constraint("Vertical", 5))
sketch9.addConstraint(Sketcher.Constraint("Horizontal", 6))
sketch9.addConstraint(Sketcher.Constraint("Vertical", 7))
sketch9.addConstraint(Sketcher.Constraint("Horizontal", 8))
sketch9.addConstraint(Sketcher.Constraint("Vertical", 9))
sketch9.addConstraint(Sketcher.Constraint("Horizontal", 10))
sketch9.addConstraint(Sketcher.Constraint("Vertical", 11))
sketch9.addConstraint(Sketcher.Constraint("Vertical", 12))
sketch9.addConstraint(Sketcher.Constraint("Coincident", 12, 1, 1, 2))
sketch9.addConstraint(Sketcher.Constraint("Horizontal", 11, 2, 12, 2))
sketch9.addConstraint(Sketcher.Constraint("Vertical", 5, 2, 8, 2))
sketch9.addConstraint(Sketcher.Constraint("Vertical", 3, 2, 10, 2))
sketch9.addConstraint(Sketcher.Constraint("DistanceX", 0, 2, -1, 1, Q("3 in")))
sketch9.addConstraint(Sketcher.Constraint("DistanceX", 0, 1, 0, 2, Q("0.25 in")))
sketch9.addConstraint(Sketcher.Constraint("DistanceY", 1, 1, 1, 2, Q("4.937 in")))
sketch9.addConstraint(Sketcher.Constraint("DistanceY", 3, 2, 3, 1, Q("1.28125 in")))
sketch9.addConstraint(Sketcher.Constraint("DistanceY", 7, 2, 7, 1, Q("1.555 in")))
sketch9.addConstraint(Sketcher.Constraint("DistanceY", 11, 2, 11, 1, Q("1.21875 in")))
sketch9.addConstraint(Sketcher.Constraint("DistanceY", 0, 2, -1, 1, Q("0.25 in")))
sketch9.addConstraint(Sketcher.Constraint("DistanceY", -1, 1, 7, 2, Q("1.41 in")))
sketch9.addConstraint(Sketcher.Constraint("DistanceX", 6, 2, -1, 1, Q("3.4375 in")))
sketch9.addConstraint(Sketcher.Constraint("DistanceX", 4, 2, 4, 1, Q("2.15011 mm")))
revolution7 = body8.newObject("PartDesign::Revolution", "Revolution006")
revolution7.Profile = sketch9
revolution7.ReferenceAxis = (sketch9, ["Axis0"])
revolution7.Angle = 360
doc.recompute()

chamfer6 = body8.newObject("PartDesign::Chamfer", "Chamfer005")
chamfer6.Base = (revolution7, edges_at(revolution7, [(-69.85, -6.35, 0), (-69.85, 119.05, 0)]))
chamfer6.Size = Q("0.046875 in")
doc.recompute()

chamfer7 = body8.newObject("PartDesign::Chamfer", "Chamfer006")
chamfer7.Base = (chamfer6, edges_at(chamfer6, [
    (-67.7, 24.606, 0),
    (-65.088, 35.814, 0),
    (-65.088, 75.311, 0),
    (-67.7, 86.506, 0),
]))
chamfer7.Size = Q("0.015625 in")
doc.recompute()

fillet6 = body8.newObject("PartDesign::Fillet", "Fillet005")
fillet6.Base = (chamfer7, edges_at(chamfer7, [(-69.85, 86.506, 0), (-69.85, 24.606, 0)]))
fillet6.Radius = Q("0.028 in")
doc.recompute()

fillet7 = body8.newObject("PartDesign::Fillet", "Fillet006")
fillet7.Base = (fillet6, edges_at(fillet6, [(-67.7, 35.814, 0), (-67.7, 75.311, 0)]))
fillet7.Radius = Q("0.015 in")
body9 = doc.addObject("PartDesign::Body", "Body008")

sketch10 = body9.newObject("Sketcher::SketchObject", "Sketch009")
sketch10.AttachmentSupport = (doc.getObject("XY_Plane008"), [""])
sketch10.MapMode = "FlatFace"
sketch10.addGeometry(Part.LineSegment(App.Vector(-87.3125, 152.4, 0), App.Vector(-82.55, 152.4, 0)), False)
sketch10.addGeometry(Part.LineSegment(App.Vector(-82.55, 152.4, 0), App.Vector(-82.55, 169.06875, 0)), False)
sketch10.addGeometry(Part.LineSegment(App.Vector(-82.55, 169.06875, 0), App.Vector(-92.075, 169.06875, 0)), False)
sketch10.addGeometry(Part.LineSegment(App.Vector(-92.075, 169.06875, 0), App.Vector(-92.075, 162.71875, 0)), False)
sketch10.addGeometry(Part.LineSegment(App.Vector(-92.075, 162.71875, 0), App.Vector(-98.425, 162.71875, 0)), False)
sketch10.addGeometry(Part.LineSegment(App.Vector(-98.425, 162.71875, 0), App.Vector(-98.425, 163.5125, 0)), False)
sketch10.addGeometry(Part.LineSegment(App.Vector(-98.425, 163.5125, 0), App.Vector(-107.95, 163.5125, 0)), False)
sketch10.addGeometry(Part.LineSegment(App.Vector(-107.95, 163.5125, 0), App.Vector(-107.95, 161.925, 0)), False)
sketch10.addGeometry(Part.LineSegment(App.Vector(-107.95, 161.925, 0), App.Vector(-104.775, 158.75, 0)), False)
sketch10.addGeometry(Part.LineSegment(App.Vector(-104.775, 158.75, 0), App.Vector(-87.3125, 158.75, 0)), False)
sketch10.addGeometry(Part.LineSegment(App.Vector(-87.3125, 158.75, 0), App.Vector(-87.3125, 152.4, 0)), False)
sketch10.addGeometry(Part.LineSegment(App.Vector(-76.2, 169.06875, 0), App.Vector(-76.2, 152.4, 0)), True)
sketch10.addConstraint(Sketcher.Constraint("Coincident", 0, 2, 1, 1))
sketch10.addConstraint(Sketcher.Constraint("Coincident", 1, 2, 2, 1))
sketch10.addConstraint(Sketcher.Constraint("Coincident", 2, 2, 3, 1))
sketch10.addConstraint(Sketcher.Constraint("Coincident", 3, 2, 4, 1))
sketch10.addConstraint(Sketcher.Constraint("Coincident", 4, 2, 5, 1))
sketch10.addConstraint(Sketcher.Constraint("Coincident", 5, 2, 6, 1))
sketch10.addConstraint(Sketcher.Constraint("Coincident", 6, 2, 7, 1))
sketch10.addConstraint(Sketcher.Constraint("Coincident", 7, 2, 8, 1))
sketch10.addConstraint(Sketcher.Constraint("Coincident", 8, 2, 9, 1))
sketch10.addConstraint(Sketcher.Constraint("Coincident", 9, 2, 10, 1))
sketch10.addConstraint(Sketcher.Constraint("Coincident", 10, 2, 0, 1))
sketch10.addConstraint(Sketcher.Constraint("Horizontal", 0))
sketch10.addConstraint(Sketcher.Constraint("Vertical", 1))
sketch10.addConstraint(Sketcher.Constraint("Horizontal", 2))
sketch10.addConstraint(Sketcher.Constraint("Vertical", 3))
sketch10.addConstraint(Sketcher.Constraint("Horizontal", 4))
sketch10.addConstraint(Sketcher.Constraint("Vertical", 5))
sketch10.addConstraint(Sketcher.Constraint("Horizontal", 6))
sketch10.addConstraint(Sketcher.Constraint("Vertical", 7))
sketch10.addConstraint(Sketcher.Constraint("Horizontal", 9))
sketch10.addConstraint(Sketcher.Constraint("Vertical", 10))
sketch10.addConstraint(Sketcher.Constraint("Vertical", 11))
sketch10.addConstraint(Sketcher.Constraint("Horizontal", 2, 2, 11, 1))
sketch10.addConstraint(Sketcher.Constraint("Horizontal", 10, 2, 11, 2))
sketch10.addConstraint(Sketcher.Constraint("Equal", 2, 6))
sketch10.addConstraint(Sketcher.Constraint("Equal", 4, 3))
sketch10.addConstraint(Sketcher.Constraint("Equal", 3, 10))
sketch10.addConstraint(Sketcher.Constraint("DistanceY", -1, 1, 0, 2, Q("6 in")))
sketch10.addConstraint(Sketcher.Constraint("DistanceX", 11, 1, -1, 1, Q("3 in")))
sketch10.addConstraint(Sketcher.Constraint("Angle", 8, Q("-45 deg")))
sketch10.addConstraint(Sketcher.Constraint("DistanceX", 6, 2, 1, 2, Q("1 in")))
sketch10.addConstraint(Sketcher.Constraint("DistanceX", 4, 2, 4, 1, Q("0.25 in")))
sketch10.addConstraint(Sketcher.Constraint("DistanceX", 8, 2, 3, 2, Q("0.5 in")))
sketch10.addConstraint(Sketcher.Constraint("DistanceX", 0, 1, 0, 2, Q("0.1875 in")))
sketch10.addConstraint(Sketcher.Constraint("DistanceY", 1, 1, 1, 2, Q("0.65625 in")))
sketch10.addConstraint(Sketcher.Constraint("DistanceY", 5, 1, 5, 2, Q("0.03125 in")))
sketch10.addConstraint(Sketcher.Constraint("DistanceX", 0, 2, -1, 1, Q("3.25 in")))
revolution8 = body9.newObject("PartDesign::Revolution", "Revolution007")
revolution8.Profile = sketch10
revolution8.ReferenceAxis = (sketch10, ["Axis0"])
revolution8.Angle = 360
doc.recompute()

chamfer8 = body9.newObject("PartDesign::Chamfer", "Chamfer007")
chamfer8.Base = (revolution8, edges_at(revolution8, [
    (-69.85, 152.4, 0),
    (-69.85, 169.069, 0),
    (-82.55, 160.734, 0),
    (-65.088, 152.4, 0),
    (-60.325, 169.069, 0),
    (-44.45, 163.512, 0),
]))
chamfer8.Size = Q("0.015625 in")
doc.recompute()

fillet8 = body9.newObject("PartDesign::Fillet", "Fillet007")
fillet8.Base = (chamfer8, edges_at(chamfer8, [(-53.975, 162.719, 0)]))
fillet8.Radius = Q("0.028 in")
body10 = doc.addObject("PartDesign::Body", "Body009")

sketch11 = body10.newObject("Sketcher::SketchObject", "Sketch010")
sketch11.AttachmentSupport = (doc.getObject("XZ_Plane009"), [""])
sketch11.MapMode = "FlatFace"
sketch11.addGeometry(Part.LineSegment(App.Vector(51.816, 6.745761, 0), App.Vector(51.816, -6.745761, 0)), False)
sketch11.addGeometry(Part.LineSegment(App.Vector(51.816, -6.745761, 0), App.Vector(63.5, -13.491521, 0)), False)
sketch11.addGeometry(Part.LineSegment(App.Vector(63.5, -13.491521, 0), App.Vector(75.184, -6.745761, 0)), False)
sketch11.addGeometry(Part.LineSegment(App.Vector(75.184, -6.745761, 0), App.Vector(75.184, 6.745761, 0)), False)
sketch11.addGeometry(Part.LineSegment(App.Vector(75.184, 6.745761, 0), App.Vector(63.5, 13.491521, 0)), False)
sketch11.addGeometry(Part.LineSegment(App.Vector(63.5, 13.491521, 0), App.Vector(51.816, 6.745761, 0)), False)
sketch11.addGeometry(Part.Circle(App.Vector(63.5, 0, 0), App.Vector(0, 0, 1), 6.35), False)
sketch11.addConstraint(Sketcher.Constraint("Coincident", 0, 2, 1, 1))
sketch11.addConstraint(Sketcher.Constraint("Coincident", 1, 2, 2, 1))
sketch11.addConstraint(Sketcher.Constraint("Coincident", 2, 2, 3, 1))
sketch11.addConstraint(Sketcher.Constraint("Coincident", 3, 2, 4, 1))
sketch11.addConstraint(Sketcher.Constraint("Coincident", 4, 2, 5, 1))
sketch11.addConstraint(Sketcher.Constraint("Coincident", 5, 2, 0, 1))
sketch11.addConstraint(Sketcher.Constraint("Vertical", 0))
sketch11.addConstraint(Sketcher.Constraint("Vertical", 3))
sketch11.addConstraint(Sketcher.Constraint("Symmetric", 1, 2, 4, 2, -1))
sketch11.addConstraint(Sketcher.Constraint("PointOnObject", 6, 3, -1))
sketch11.addConstraint(Sketcher.Constraint("Parallel", 1, 4))
sketch11.addConstraint(Sketcher.Constraint("Parallel", 2, 5))
sketch11.addConstraint(Sketcher.Constraint("Horizontal", 0, 2, 2, 2))
sketch11.addConstraint(Sketcher.Constraint("Horizontal", 3, 2, 5, 2))
sketch11.addConstraint(Sketcher.Constraint("Vertical", 6, 3, 1, 2))
sketch11.addConstraint(Sketcher.Constraint("Diameter", 6, Q("0.5 in")))
sketch11.addConstraint(Sketcher.Constraint("Angle", 1, Q("-30 deg")))
sketch11.addConstraint(Sketcher.Constraint("DistanceX", -1, 1, 6, 3, Q("2.5 in")))
sketch11.addConstraint(Sketcher.Constraint("DistanceX", -1, 1, 0, 2, Q("2.04 in")))
sketch11.addConstraint(Sketcher.Constraint("DistanceY", 0, 2, 0, 1, Q("13.491521 mm")))
pad2 = body10.newObject("PartDesign::Pad", "Pad001")
pad2.Profile = sketch11
pad2.Length = Q("0.3125 in")

sketch12 = body10.newObject("Sketcher::SketchObject", "Sketch011")
sketch12.AttachmentSupport = (doc.getObject("XY_Plane009"), [""])
sketch12.MapMode = "FlatFace"
sketch12.addGeometry(Part.LineSegment(App.Vector(49.276, -1.46647, 0), App.Vector(51.816, 0, 0)), False)
sketch12.addGeometry(Part.LineSegment(App.Vector(51.816, 0, 0), App.Vector(49.276, 0, 0)), False)
sketch12.addGeometry(Part.LineSegment(App.Vector(49.276, 0, 0), App.Vector(49.276, -1.46647, 0)), False)
sketch12.addGeometry(Part.LineSegment(App.Vector(49.276, -7.9375, 0), App.Vector(51.816, -7.9375, 0)), False)
sketch12.addGeometry(Part.LineSegment(App.Vector(51.816, -7.9375, 0), App.Vector(49.276, -6.47103, 0)), False)
sketch12.addGeometry(Part.LineSegment(App.Vector(49.276, -6.47103, 0), App.Vector(49.276, -7.9375, 0)), False)
sketch12.addGeometry(Part.LineSegment(App.Vector(63.5, 0, 0), App.Vector(63.5, -7.9375, 0)), True)
sketch12.addConstraint(Sketcher.Constraint("Coincident", 0, 2, 1, 1))
sketch12.addConstraint(Sketcher.Constraint("Coincident", 1, 2, 2, 1))
sketch12.addConstraint(Sketcher.Constraint("Coincident", 2, 2, 0, 1))
sketch12.addConstraint(Sketcher.Constraint("Coincident", 3, 2, 4, 1))
sketch12.addConstraint(Sketcher.Constraint("Coincident", 4, 2, 5, 1))
sketch12.addConstraint(Sketcher.Constraint("Coincident", 5, 2, 3, 1))
sketch12.addConstraint(Sketcher.Constraint("Horizontal", 1))
sketch12.addConstraint(Sketcher.Constraint("Vertical", 2))
sketch12.addConstraint(Sketcher.Constraint("Horizontal", 3))
sketch12.addConstraint(Sketcher.Constraint("Vertical", 5))
sketch12.addConstraint(Sketcher.Constraint("Vertical", 6))
sketch12.addConstraint(Sketcher.Constraint("PointOnObject", 0, 2, -1))
sketch12.addConstraint(Sketcher.Constraint("PointOnObject", 6, 1, -1))
sketch12.addConstraint(Sketcher.Constraint("Horizontal", 5, 2, 6, 2))
sketch12.addConstraint(Sketcher.Constraint("Vertical", 0, 2, 3, 2))
sketch12.addConstraint(Sketcher.Constraint("Vertical", 2, 2, 4, 2))
sketch12.addConstraint(Sketcher.Constraint("Equal", 2, 5))
sketch12.addConstraint(Sketcher.Constraint("DistanceX", 1, 2, 1, 1, Q("0.1 in")))
sketch12.addConstraint(Sketcher.Constraint("Angle", 0, Q("30 deg")))
sketch12.addConstraint(Sketcher.Constraint("DistanceX", -1, 1, 6, 1, Q("2.5 in")))
sketch12.addConstraint(Sketcher.Constraint("DistanceY", 6, 2, 6, 1, Q("0.3125 in")))
sketch12.addConstraint(Sketcher.Constraint("DistanceX", -1, 1, 0, 2, Q("2.04 in")))
groove = body10.newObject("PartDesign::Groove", "Groove")
groove.Profile = sketch12
groove.ReferenceAxis = (sketch12, ["Axis0"])
groove.Angle = 360

doc.recompute()
